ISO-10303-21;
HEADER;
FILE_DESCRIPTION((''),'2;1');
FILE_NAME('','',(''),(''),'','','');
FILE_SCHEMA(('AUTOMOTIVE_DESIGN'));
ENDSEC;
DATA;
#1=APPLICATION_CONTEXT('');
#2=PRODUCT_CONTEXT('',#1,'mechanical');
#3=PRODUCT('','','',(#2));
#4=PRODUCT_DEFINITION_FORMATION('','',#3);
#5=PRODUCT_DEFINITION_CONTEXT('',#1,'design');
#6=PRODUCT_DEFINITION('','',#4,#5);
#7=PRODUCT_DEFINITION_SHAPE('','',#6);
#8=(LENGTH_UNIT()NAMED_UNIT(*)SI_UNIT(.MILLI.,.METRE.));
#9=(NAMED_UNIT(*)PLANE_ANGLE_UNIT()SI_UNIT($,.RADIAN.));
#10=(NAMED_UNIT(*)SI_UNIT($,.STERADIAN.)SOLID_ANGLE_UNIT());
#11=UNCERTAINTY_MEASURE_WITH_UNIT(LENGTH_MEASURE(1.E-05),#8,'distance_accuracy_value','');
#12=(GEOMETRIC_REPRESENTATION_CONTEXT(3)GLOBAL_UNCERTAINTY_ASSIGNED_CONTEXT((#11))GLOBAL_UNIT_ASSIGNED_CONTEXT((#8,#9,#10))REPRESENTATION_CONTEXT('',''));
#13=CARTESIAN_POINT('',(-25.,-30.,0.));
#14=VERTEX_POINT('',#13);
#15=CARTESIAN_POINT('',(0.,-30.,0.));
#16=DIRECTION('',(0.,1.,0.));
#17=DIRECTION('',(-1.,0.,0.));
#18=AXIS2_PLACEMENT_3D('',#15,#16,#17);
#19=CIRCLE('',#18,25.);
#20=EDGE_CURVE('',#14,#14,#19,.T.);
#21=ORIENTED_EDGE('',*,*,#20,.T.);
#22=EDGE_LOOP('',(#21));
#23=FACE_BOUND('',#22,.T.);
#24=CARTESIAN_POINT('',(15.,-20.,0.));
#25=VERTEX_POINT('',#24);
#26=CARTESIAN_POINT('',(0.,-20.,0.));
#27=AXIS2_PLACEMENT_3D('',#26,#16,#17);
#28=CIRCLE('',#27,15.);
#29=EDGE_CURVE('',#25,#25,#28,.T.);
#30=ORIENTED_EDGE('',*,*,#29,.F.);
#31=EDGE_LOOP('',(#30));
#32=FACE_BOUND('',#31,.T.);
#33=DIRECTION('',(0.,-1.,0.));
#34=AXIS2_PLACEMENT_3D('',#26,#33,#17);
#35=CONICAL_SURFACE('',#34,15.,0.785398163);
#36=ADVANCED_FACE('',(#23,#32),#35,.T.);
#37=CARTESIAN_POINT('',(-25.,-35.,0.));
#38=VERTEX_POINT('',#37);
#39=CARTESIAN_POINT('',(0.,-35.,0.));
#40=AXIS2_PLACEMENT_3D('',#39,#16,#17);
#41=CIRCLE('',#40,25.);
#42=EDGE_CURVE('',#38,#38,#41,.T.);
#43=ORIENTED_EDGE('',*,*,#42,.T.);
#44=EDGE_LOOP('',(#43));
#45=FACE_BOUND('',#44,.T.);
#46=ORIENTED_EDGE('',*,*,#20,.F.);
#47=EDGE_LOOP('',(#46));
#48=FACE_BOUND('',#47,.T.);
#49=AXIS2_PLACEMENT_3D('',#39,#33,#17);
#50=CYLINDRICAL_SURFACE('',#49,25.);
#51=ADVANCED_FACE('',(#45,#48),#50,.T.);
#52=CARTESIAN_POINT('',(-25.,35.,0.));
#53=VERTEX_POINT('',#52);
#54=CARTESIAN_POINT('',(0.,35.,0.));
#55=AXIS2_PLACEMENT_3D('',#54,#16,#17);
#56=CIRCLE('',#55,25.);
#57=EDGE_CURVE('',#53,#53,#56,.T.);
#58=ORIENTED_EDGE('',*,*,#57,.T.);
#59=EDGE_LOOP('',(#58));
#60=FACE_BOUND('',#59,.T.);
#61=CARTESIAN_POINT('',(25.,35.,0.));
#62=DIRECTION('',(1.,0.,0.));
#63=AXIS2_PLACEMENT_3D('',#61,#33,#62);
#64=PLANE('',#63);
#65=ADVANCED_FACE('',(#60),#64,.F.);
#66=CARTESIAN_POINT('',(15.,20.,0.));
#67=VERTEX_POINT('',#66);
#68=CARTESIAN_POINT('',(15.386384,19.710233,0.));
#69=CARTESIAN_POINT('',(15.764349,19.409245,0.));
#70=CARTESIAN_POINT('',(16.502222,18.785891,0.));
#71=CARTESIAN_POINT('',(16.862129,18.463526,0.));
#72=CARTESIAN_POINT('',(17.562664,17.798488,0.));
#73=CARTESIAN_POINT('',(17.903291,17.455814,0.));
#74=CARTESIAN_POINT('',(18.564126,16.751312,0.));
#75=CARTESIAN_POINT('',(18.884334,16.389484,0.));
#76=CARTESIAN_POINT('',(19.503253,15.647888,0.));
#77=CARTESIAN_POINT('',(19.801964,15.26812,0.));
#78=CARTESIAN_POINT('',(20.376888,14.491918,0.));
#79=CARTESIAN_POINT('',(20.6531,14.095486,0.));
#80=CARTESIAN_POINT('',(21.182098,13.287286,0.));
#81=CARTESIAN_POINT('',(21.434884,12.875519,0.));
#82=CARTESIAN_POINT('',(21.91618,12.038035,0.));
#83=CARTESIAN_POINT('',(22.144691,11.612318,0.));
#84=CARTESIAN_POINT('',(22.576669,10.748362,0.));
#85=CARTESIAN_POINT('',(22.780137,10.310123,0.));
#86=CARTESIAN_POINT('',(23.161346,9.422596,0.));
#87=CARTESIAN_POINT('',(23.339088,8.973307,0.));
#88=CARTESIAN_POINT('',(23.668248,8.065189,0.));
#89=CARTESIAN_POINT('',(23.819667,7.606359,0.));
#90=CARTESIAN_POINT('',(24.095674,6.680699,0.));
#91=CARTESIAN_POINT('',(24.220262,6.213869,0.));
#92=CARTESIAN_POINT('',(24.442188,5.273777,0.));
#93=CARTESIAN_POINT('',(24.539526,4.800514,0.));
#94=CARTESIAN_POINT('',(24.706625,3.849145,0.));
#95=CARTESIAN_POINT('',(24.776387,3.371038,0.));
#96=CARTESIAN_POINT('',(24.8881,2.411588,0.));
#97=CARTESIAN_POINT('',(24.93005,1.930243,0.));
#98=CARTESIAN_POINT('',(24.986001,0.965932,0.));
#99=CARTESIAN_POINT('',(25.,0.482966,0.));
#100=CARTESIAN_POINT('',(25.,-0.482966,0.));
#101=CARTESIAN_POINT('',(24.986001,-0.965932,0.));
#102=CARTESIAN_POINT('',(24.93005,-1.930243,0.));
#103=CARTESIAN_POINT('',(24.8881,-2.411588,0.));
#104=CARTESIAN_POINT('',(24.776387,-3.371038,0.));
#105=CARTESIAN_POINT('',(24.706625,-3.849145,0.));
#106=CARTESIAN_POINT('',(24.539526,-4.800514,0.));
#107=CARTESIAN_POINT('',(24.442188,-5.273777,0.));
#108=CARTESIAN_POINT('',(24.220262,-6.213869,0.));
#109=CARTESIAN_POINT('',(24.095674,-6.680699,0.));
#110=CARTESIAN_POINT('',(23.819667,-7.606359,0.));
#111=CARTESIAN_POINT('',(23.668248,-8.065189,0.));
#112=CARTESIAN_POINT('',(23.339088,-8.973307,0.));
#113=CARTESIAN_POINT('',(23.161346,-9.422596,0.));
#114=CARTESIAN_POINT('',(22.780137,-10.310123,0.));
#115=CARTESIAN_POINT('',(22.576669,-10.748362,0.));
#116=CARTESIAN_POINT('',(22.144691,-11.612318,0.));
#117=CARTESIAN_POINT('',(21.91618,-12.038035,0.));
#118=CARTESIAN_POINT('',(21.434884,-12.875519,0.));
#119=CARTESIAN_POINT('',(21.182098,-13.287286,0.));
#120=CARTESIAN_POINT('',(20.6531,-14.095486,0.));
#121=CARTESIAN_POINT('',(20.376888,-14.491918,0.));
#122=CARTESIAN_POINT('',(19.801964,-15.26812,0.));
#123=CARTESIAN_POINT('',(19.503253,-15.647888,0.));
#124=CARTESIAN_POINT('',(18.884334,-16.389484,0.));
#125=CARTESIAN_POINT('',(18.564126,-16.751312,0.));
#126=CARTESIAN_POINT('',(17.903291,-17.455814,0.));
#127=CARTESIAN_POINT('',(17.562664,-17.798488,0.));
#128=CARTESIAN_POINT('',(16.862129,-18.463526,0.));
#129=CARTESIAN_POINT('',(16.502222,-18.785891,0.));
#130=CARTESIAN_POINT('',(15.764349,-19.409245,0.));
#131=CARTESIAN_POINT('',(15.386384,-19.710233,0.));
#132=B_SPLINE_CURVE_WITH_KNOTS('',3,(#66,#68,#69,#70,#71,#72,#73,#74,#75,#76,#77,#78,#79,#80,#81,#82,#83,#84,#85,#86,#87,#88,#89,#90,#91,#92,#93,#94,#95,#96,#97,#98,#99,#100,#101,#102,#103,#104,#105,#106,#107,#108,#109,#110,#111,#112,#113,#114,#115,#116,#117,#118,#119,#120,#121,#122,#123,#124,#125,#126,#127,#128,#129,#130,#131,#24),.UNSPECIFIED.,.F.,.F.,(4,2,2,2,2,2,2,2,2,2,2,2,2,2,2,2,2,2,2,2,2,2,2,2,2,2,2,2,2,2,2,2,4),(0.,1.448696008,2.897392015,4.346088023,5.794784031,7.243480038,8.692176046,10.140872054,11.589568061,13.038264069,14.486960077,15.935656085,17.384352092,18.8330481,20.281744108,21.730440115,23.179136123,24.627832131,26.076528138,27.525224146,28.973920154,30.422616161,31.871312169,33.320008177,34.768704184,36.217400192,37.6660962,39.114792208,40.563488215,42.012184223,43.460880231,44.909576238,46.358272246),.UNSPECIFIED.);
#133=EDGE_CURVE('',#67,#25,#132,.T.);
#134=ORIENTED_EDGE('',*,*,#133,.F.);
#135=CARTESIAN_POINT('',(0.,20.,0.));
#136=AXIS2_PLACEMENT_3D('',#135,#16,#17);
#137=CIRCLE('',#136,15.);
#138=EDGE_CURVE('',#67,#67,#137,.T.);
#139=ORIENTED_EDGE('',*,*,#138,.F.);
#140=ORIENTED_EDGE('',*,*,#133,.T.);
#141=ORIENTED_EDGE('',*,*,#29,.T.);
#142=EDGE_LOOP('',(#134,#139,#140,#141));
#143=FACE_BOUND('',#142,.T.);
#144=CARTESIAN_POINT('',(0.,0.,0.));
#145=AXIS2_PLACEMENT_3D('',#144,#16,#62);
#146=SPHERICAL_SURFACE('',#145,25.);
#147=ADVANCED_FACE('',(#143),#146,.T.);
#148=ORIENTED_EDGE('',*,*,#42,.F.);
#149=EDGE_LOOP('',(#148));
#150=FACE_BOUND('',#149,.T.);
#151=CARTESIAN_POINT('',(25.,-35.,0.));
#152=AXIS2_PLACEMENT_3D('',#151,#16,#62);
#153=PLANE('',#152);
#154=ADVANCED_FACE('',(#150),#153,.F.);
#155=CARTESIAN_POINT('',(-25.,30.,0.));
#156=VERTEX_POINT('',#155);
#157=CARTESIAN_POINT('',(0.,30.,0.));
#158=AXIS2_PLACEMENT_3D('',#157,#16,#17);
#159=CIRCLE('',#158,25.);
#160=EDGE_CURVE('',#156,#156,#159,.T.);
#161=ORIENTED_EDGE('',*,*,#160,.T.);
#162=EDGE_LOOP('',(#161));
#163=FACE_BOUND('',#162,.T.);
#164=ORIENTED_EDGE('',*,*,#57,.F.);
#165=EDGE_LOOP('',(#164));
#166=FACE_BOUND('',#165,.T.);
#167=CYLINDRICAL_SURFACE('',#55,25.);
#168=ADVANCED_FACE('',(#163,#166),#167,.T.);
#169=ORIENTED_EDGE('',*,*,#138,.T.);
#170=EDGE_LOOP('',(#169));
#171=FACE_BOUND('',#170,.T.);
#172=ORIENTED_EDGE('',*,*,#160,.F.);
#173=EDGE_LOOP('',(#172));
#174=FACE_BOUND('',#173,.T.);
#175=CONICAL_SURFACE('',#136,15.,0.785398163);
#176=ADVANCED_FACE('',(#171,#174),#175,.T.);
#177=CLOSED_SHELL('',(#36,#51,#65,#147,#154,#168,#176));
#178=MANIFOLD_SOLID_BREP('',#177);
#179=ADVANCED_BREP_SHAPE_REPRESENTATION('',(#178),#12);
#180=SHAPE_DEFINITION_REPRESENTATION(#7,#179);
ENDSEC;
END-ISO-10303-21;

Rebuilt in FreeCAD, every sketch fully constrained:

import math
import FreeCAD as App
import Part
import Sketcher
from FreeCAD import Vector

doc = App.newDocument("Part")
body = doc.addObject("PartDesign::Body", "Body")

# Sketch on XY plane
sketch1 = body.newObject("Sketcher::SketchObject", "Sketch")
sketch1.AttachmentSupport = (doc.getObject("XY_Plane"), [""])
sketch1.MapMode = "FlatFace"
sketch1.addGeometry([
    Part.LineSegment(Vector(0, 20, 0), Vector(0, -20, 0)),
    Part.LineSegment(Vector(0, -20, 0), Vector(15, -20, 0)),
    Part.ArcOfCircle(Part.Circle(Vector(0, 0, 0), Vector(0, 0, 1), 25), math.radians(-53.130102), math.radians(53.130102)),
    Part.LineSegment(Vector(15, 20, 0), Vector(0, 20, 0)),
], False)
sketch1.addConstraint([
    Sketcher.Constraint("Coincident", 0, 2, 1, 1),
    Sketcher.Constraint("Coincident", 1, 2, 2, 1),
    Sketcher.Constraint("Coincident", 2, 2, 3, 1),
    Sketcher.Constraint("Coincident", 3, 2, 0, 1),
    Sketcher.Constraint("Vertical", 0),
    Sketcher.Constraint("Horizontal", 1),
    Sketcher.Constraint("Horizontal", 3),
    Sketcher.Constraint("Coincident", 2, 3, -1, 1),
    Sketcher.Constraint("Symmetric", 0, 2, 3, 2, -1, 1),
    Sketcher.Constraint("Radius", 2, 25.0),
    Sketcher.Constraint("DistanceX", 1, 1, 1, 2, 15.0),
])
revolution = body.newObject("PartDesign::Revolution", "Revolution")
revolution.Profile = sketch1
revolution.ReferenceAxis = (sketch1, ["V_Axis"])
revolution.Angle = 360

# Sketch on XY plane
sketch2 = body.newObject("Sketcher::SketchObject", "Sketch001")
sketch2.AttachmentSupport = (doc.getObject("XY_Plane"), [""])
sketch2.MapMode = "FlatFace"
sketch2.addGeometry([
    Part.LineSegment(Vector(0, 20, 0), Vector(15, 20, 0)),  # 0
    Part.LineSegment(Vector(15, 20, 0), Vector(25, 30, 0)),  # 1
    Part.LineSegment(Vector(25, 30, 0), Vector(25, 35, 0)),  # 2
    Part.LineSegment(Vector(25, 35, 0), Vector(0, 35, 0)),  # 3
    Part.LineSegment(Vector(0, 35, 0), Vector(0, 20, 0)),  # 4
], False)
sketch2.addConstraint([
    Sketcher.Constraint("Coincident", 0, 2, 1, 1),
    Sketcher.Constraint("Coincident", 1, 2, 2, 1),
    Sketcher.Constraint("Coincident", 2, 2, 3, 1),
    Sketcher.Constraint("Coincident", 3, 2, 4, 1),
    Sketcher.Constraint("Coincident", 4, 2, 0, 1),
    Sketcher.Constraint("Horizontal", 0),
    Sketcher.Constraint("Vertical", 2),
    Sketcher.Constraint("Horizontal", 3),
    Sketcher.Constraint("Vertical", 4),
    Sketcher.Constraint("PointOnObject", 3, 2, -2),
    Sketcher.Constraint("Equal", 0, 4),
    Sketcher.Constraint("DistanceX", 0, 1, 0, 2, 15.0),
    Sketcher.Constraint("DistanceX", 3, 2, 3, 1, 25.0),
    Sketcher.Constraint("DistanceY", 2, 1, 2, 2, 5.0),
    Sketcher.Constraint("DistanceY", -1, 1, 0, 2, 20.0),
])
revolution2 = body.newObject("PartDesign::Revolution", "Revolution001")
revolution2.Profile = sketch2
revolution2.ReferenceAxis = (sketch2, ["V_Axis"])
revolution2.Angle = 360
doc.recompute()

mirrored = body.newObject("PartDesign::Mirrored", "Mirrored")
mirrored.Originals = [revolution2]
mirrored.MirrorPlane = (doc.getObject("XZ_Plane"), [""])
body.Tip = mirrored

doc.recompute()
